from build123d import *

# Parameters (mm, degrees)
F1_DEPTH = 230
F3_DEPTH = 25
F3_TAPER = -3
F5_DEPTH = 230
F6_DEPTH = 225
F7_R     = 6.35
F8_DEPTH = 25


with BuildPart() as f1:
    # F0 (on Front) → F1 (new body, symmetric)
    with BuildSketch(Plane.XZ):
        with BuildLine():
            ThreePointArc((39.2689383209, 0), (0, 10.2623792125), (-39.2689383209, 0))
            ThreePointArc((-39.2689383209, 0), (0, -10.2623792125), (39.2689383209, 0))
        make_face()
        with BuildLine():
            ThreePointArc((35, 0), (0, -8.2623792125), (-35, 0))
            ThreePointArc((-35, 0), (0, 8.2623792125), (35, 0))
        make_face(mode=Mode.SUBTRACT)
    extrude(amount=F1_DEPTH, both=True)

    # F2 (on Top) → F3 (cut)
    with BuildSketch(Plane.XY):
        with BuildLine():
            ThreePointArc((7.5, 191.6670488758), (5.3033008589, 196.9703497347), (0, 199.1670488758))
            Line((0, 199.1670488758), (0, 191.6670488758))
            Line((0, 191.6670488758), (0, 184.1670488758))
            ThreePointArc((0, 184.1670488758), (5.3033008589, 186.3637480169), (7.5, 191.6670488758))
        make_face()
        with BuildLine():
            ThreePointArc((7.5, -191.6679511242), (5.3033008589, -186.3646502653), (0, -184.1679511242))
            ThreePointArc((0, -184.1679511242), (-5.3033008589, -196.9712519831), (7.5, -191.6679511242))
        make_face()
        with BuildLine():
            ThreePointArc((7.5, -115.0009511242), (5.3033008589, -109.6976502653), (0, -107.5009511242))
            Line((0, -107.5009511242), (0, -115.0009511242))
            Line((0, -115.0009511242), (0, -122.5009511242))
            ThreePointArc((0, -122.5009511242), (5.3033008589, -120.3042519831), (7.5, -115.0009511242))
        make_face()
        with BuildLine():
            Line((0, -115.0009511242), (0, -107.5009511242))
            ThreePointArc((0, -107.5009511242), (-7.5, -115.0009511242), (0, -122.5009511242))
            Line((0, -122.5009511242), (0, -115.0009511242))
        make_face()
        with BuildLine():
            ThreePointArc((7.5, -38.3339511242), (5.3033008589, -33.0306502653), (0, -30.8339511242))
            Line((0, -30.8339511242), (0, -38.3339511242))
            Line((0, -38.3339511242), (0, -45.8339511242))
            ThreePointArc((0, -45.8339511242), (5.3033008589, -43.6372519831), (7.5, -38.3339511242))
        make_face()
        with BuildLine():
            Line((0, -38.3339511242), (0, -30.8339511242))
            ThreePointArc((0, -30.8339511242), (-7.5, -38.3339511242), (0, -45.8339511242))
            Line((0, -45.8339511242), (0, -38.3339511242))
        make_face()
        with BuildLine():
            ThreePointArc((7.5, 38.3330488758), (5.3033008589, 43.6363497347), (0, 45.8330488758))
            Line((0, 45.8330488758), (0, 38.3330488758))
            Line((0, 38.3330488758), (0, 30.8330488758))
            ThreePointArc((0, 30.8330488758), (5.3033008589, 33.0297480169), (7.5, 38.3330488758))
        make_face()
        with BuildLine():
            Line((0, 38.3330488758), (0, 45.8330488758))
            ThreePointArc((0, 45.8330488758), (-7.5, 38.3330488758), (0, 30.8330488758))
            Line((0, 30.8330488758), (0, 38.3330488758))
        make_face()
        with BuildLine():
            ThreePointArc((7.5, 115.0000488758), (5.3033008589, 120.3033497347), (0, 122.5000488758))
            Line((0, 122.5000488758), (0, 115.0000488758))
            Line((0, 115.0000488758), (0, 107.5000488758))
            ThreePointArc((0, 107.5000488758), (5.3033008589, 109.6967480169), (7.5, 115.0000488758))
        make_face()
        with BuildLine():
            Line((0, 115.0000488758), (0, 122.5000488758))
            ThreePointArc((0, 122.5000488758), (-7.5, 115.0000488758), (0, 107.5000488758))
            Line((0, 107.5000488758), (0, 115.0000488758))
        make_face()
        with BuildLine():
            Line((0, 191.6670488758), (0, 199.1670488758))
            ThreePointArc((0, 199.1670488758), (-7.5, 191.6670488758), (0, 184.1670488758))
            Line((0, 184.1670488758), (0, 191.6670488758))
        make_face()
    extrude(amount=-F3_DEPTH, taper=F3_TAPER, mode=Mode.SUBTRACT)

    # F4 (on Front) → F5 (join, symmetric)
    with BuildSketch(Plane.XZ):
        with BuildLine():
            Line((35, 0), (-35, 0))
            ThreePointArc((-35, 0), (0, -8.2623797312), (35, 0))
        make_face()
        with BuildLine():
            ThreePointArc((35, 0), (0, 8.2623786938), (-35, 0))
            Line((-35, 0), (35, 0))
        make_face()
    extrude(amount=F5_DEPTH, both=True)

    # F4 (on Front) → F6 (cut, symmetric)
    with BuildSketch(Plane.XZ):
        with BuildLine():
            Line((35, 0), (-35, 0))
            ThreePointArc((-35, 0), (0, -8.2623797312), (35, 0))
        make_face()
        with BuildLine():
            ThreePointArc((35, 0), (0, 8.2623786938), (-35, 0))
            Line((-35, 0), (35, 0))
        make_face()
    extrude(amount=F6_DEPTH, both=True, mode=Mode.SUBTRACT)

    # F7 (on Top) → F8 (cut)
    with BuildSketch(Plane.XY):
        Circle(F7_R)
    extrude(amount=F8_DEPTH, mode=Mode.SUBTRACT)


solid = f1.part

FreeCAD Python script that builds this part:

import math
import FreeCAD as App
import Part
import Sketcher

V = App.Vector
Q = App.Units.Quantity

doc = App.newDocument("Part")
body = doc.addObject("PartDesign::Body", "Body")

# Sketch on XZ plane
sketch1 = body.newObject("Sketcher::SketchObject", "Sketch")
sketch1.AttachmentSupport = (doc.getObject("XZ_Plane"), [""])
sketch1.MapMode = "FlatFace"
sketch1.addGeometry([
    Part.ArcOfCircle(Part.Circle(V(0, -70, 0), V(0, 0, 1), 80.262379), math.radians(60.708236), math.radians(119.291764)),
    Part.ArcOfCircle(Part.Circle(V(0, 70, 0), V(0, 0, 1), 80.262379), math.radians(-119.291764), math.radians(-60.708236)),
    Part.ArcOfCircle(Part.Circle(V(0, -70, 0), V(0, 0, 1), 78.262379), math.radians(63.434949), math.radians(116.565051)),
    Part.ArcOfCircle(Part.Circle(V(0, 70, 0), V(0, 0, 1), 78.262379), math.radians(-116.565051), math.radians(-63.434949)),
], False)
sketch1.addConstraint([
    Sketcher.Constraint("Coincident", 0, 1, 1, 2),
    Sketcher.Constraint("Coincident", 1, 1, 0, 2),
    Sketcher.Constraint("Coincident", 2, 1, 3, 2),
    Sketcher.Constraint("Coincident", 3, 1, 2, 2),
    Sketcher.Constraint("Coincident", 2, 3, 0, 3),
    Sketcher.Constraint("Coincident", 3, 3, 1, 3),
    Sketcher.Constraint("Equal", 0, 1),
    Sketcher.Constraint("Equal", 2, 3),
    Sketcher.Constraint("Symmetric", 0, 3, 1, 3, -1, 1),
    Sketcher.Constraint("PointOnObject", 0, 3, -2),
    Sketcher.Constraint("DistanceY", 0, 3, -1, 1, Q("70 mm")),
    Sketcher.Constraint("DistanceX", -1, 1, 2, 1, Q("35 mm")),
    Sketcher.Constraint("Radius", 0, Q("80.262379 mm")),
])
pad1 = body.newObject("PartDesign::Pad", "Pad")
pad1.Profile = sketch1
pad1.Length = 460
pad1.Midplane = True

# Sketch on XY plane
sketch2 = body.newObject("Sketcher::SketchObject", "Sketch001")
sketch2.AttachmentSupport = (doc.getObject("XY_Plane"), [""])
sketch2.MapMode = "FlatFace"
sketch2.addGeometry([
    Part.Circle(V(0, 191.667049, 0), V(0, 0, 1), 7.5),  # 0
    Part.Circle(V(0, -191.667951, 0), V(0, 0, 1), 7.5),  # 1
    Part.Circle(V(0, -115.000951, 0), V(0, 0, 1), 7.5),  # 2
    Part.Circle(V(0, -38.333951, 0), V(0, 0, 1), 7.5),  # 3
    Part.Circle(V(0, 38.333049, 0), V(0, 0, 1), 7.5),  # 4
    Part.Circle(V(0, 115.000049, 0), V(0, 0, 1), 7.5),  # 5
], False)
sketch2.addConstraint([
    Sketcher.Constraint("Equal", 0, 1),
    Sketcher.Constraint("Equal", 1, 2),
    Sketcher.Constraint("Equal", 2, 3),
    Sketcher.Constraint("Equal", 3, 4),
    Sketcher.Constraint("Equal", 4, 5),
    Sketcher.Constraint("PointOnObject", 0, 3, -2),
    Sketcher.Constraint("PointOnObject", 1, 3, -2),
    Sketcher.Constraint("PointOnObject", 2, 3, -2),
    Sketcher.Constraint("PointOnObject", 3, 3, -2),
    Sketcher.Constraint("PointOnObject", 4, 3, -2),
    Sketcher.Constraint("PointOnObject", 5, 3, -2),
    Sketcher.Constraint("Diameter", 0, Q("15 mm")),
    Sketcher.Constraint("DistanceY", 1, 3, 0, 3, Q("383.335 mm")),
    Sketcher.Constraint("DistanceY", 1, 3, 2, 3, Q("76.667 mm")),
    Sketcher.Constraint("DistanceY", 2, 3, 3, 3, Q("76.667 mm")),
    Sketcher.Constraint("DistanceY", 3, 3, 4, 3, Q("76.667 mm")),
    Sketcher.Constraint("DistanceY", 5, 3, 0, 3, Q("76.667 mm")),
    Sketcher.Constraint("DistanceY", -1, 1, 0, 3, Q("191.667049 mm")),
])
pocket1 = body.newObject("PartDesign::Pocket", "Pocket")
pocket1.Profile = sketch2
pocket1.Length = 25
pocket1.TaperAngle = 3

# Sketch on XZ plane
sketch3 = body.newObject("Sketcher::SketchObject", "Sketch002")
sketch3.AttachmentSupport = (doc.getObject("XZ_Plane"), [""])
sketch3.MapMode = "FlatFace"
sketch3.addGeometry([
    Part.ArcOfCircle(Part.Circle(V(0, 69.999995, 0), V(0, 0, 1), 78.262375), math.radians(-116.565053), math.radians(-63.434947)),
    Part.ArcOfCircle(Part.Circle(V(0, -70.000005, 0), V(0, 0, 1), 78.262384), math.radians(63.43495), math.radians(116.56505)),
], False)
sketch3.addConstraint([
    Sketcher.Constraint("Coincident", 0, 1, 1, 2),
    Sketcher.Constraint("Coincident", 1, 1, 0, 2),
    Sketcher.Constraint("Symmetric", 0, 3, 1, 3, -1, 1),
    Sketcher.Constraint("PointOnObject", 0, 3, -2),
    Sketcher.Constraint("PointOnObject", 0, 1, -1),
    Sketcher.Constraint("DistanceX", 0, 1, -1, 1, Q("35 mm")),
    Sketcher.Constraint("DistanceY", 1, 3, 0, 3, Q("140 mm")),
])
pad2 = body.newObject("PartDesign::Pad", "Pad001")
pad2.Profile = sketch3
pad2.Length = 460
pad2.Midplane = True

# Sketch on XZ plane
sketch4 = body.newObject("Sketcher::SketchObject", "Sketch003")
sketch4.AttachmentSupport = (doc.getObject("XZ_Plane"), [""])
sketch4.MapMode = "FlatFace"
sketch4.addGeometry([
    Part.ArcOfCircle(Part.Circle(V(0, 69.999995, 0), V(0, 0, 1), 78.262375), math.radians(-116.565053), math.radians(-63.434947)),
    Part.ArcOfCircle(Part.Circle(V(0, -70.000005, 0), V(0, 0, 1), 78.262384), math.radians(63.43495), math.radians(116.56505)),
], False)
sketch4.addConstraint([
    Sketcher.Constraint("Coincident", 0, 1, 1, 2),
    Sketcher.Constraint("Coincident", 1, 1, 0, 2),
    Sketcher.Constraint("Symmetric", 0, 3, 1, 3, -1, 1),
    Sketcher.Constraint("PointOnObject", 0, 3, -2),
    Sketcher.Constraint("PointOnObject", 0, 1, -1),
    Sketcher.Constraint("DistanceX", 0, 1, -1, 1, Q("35 mm")),
    Sketcher.Constraint("DistanceY", 1, 3, 0, 3, Q("140 mm")),
])
pocket2 = body.newObject("PartDesign::Pocket", "Pocket001")
pocket2.Profile = sketch4
pocket2.Length = 450
pocket2.Midplane = True

# Sketch on XY plane
sketch5 = body.newObject("Sketcher::SketchObject", "Sketch004")
sketch5.AttachmentSupport = (doc.getObject("XY_Plane"), [""])
sketch5.MapMode = "FlatFace"
sketch5.addGeometry(Part.Circle(V(0, 0, 0), V(0, 0, 1), 6.35), False)
sketch5.addConstraint([
    Sketcher.Constraint("Coincident", 0, 3, -1, 1),
    Sketcher.Constraint("Diameter", 0, Q("12.7 mm")),
])
pocket3 = body.newObject("PartDesign::Pocket", "Pocket002")
pocket3.Profile = sketch5
pocket3.Length = 25
pocket3.Reversed = True

doc.recompute()
